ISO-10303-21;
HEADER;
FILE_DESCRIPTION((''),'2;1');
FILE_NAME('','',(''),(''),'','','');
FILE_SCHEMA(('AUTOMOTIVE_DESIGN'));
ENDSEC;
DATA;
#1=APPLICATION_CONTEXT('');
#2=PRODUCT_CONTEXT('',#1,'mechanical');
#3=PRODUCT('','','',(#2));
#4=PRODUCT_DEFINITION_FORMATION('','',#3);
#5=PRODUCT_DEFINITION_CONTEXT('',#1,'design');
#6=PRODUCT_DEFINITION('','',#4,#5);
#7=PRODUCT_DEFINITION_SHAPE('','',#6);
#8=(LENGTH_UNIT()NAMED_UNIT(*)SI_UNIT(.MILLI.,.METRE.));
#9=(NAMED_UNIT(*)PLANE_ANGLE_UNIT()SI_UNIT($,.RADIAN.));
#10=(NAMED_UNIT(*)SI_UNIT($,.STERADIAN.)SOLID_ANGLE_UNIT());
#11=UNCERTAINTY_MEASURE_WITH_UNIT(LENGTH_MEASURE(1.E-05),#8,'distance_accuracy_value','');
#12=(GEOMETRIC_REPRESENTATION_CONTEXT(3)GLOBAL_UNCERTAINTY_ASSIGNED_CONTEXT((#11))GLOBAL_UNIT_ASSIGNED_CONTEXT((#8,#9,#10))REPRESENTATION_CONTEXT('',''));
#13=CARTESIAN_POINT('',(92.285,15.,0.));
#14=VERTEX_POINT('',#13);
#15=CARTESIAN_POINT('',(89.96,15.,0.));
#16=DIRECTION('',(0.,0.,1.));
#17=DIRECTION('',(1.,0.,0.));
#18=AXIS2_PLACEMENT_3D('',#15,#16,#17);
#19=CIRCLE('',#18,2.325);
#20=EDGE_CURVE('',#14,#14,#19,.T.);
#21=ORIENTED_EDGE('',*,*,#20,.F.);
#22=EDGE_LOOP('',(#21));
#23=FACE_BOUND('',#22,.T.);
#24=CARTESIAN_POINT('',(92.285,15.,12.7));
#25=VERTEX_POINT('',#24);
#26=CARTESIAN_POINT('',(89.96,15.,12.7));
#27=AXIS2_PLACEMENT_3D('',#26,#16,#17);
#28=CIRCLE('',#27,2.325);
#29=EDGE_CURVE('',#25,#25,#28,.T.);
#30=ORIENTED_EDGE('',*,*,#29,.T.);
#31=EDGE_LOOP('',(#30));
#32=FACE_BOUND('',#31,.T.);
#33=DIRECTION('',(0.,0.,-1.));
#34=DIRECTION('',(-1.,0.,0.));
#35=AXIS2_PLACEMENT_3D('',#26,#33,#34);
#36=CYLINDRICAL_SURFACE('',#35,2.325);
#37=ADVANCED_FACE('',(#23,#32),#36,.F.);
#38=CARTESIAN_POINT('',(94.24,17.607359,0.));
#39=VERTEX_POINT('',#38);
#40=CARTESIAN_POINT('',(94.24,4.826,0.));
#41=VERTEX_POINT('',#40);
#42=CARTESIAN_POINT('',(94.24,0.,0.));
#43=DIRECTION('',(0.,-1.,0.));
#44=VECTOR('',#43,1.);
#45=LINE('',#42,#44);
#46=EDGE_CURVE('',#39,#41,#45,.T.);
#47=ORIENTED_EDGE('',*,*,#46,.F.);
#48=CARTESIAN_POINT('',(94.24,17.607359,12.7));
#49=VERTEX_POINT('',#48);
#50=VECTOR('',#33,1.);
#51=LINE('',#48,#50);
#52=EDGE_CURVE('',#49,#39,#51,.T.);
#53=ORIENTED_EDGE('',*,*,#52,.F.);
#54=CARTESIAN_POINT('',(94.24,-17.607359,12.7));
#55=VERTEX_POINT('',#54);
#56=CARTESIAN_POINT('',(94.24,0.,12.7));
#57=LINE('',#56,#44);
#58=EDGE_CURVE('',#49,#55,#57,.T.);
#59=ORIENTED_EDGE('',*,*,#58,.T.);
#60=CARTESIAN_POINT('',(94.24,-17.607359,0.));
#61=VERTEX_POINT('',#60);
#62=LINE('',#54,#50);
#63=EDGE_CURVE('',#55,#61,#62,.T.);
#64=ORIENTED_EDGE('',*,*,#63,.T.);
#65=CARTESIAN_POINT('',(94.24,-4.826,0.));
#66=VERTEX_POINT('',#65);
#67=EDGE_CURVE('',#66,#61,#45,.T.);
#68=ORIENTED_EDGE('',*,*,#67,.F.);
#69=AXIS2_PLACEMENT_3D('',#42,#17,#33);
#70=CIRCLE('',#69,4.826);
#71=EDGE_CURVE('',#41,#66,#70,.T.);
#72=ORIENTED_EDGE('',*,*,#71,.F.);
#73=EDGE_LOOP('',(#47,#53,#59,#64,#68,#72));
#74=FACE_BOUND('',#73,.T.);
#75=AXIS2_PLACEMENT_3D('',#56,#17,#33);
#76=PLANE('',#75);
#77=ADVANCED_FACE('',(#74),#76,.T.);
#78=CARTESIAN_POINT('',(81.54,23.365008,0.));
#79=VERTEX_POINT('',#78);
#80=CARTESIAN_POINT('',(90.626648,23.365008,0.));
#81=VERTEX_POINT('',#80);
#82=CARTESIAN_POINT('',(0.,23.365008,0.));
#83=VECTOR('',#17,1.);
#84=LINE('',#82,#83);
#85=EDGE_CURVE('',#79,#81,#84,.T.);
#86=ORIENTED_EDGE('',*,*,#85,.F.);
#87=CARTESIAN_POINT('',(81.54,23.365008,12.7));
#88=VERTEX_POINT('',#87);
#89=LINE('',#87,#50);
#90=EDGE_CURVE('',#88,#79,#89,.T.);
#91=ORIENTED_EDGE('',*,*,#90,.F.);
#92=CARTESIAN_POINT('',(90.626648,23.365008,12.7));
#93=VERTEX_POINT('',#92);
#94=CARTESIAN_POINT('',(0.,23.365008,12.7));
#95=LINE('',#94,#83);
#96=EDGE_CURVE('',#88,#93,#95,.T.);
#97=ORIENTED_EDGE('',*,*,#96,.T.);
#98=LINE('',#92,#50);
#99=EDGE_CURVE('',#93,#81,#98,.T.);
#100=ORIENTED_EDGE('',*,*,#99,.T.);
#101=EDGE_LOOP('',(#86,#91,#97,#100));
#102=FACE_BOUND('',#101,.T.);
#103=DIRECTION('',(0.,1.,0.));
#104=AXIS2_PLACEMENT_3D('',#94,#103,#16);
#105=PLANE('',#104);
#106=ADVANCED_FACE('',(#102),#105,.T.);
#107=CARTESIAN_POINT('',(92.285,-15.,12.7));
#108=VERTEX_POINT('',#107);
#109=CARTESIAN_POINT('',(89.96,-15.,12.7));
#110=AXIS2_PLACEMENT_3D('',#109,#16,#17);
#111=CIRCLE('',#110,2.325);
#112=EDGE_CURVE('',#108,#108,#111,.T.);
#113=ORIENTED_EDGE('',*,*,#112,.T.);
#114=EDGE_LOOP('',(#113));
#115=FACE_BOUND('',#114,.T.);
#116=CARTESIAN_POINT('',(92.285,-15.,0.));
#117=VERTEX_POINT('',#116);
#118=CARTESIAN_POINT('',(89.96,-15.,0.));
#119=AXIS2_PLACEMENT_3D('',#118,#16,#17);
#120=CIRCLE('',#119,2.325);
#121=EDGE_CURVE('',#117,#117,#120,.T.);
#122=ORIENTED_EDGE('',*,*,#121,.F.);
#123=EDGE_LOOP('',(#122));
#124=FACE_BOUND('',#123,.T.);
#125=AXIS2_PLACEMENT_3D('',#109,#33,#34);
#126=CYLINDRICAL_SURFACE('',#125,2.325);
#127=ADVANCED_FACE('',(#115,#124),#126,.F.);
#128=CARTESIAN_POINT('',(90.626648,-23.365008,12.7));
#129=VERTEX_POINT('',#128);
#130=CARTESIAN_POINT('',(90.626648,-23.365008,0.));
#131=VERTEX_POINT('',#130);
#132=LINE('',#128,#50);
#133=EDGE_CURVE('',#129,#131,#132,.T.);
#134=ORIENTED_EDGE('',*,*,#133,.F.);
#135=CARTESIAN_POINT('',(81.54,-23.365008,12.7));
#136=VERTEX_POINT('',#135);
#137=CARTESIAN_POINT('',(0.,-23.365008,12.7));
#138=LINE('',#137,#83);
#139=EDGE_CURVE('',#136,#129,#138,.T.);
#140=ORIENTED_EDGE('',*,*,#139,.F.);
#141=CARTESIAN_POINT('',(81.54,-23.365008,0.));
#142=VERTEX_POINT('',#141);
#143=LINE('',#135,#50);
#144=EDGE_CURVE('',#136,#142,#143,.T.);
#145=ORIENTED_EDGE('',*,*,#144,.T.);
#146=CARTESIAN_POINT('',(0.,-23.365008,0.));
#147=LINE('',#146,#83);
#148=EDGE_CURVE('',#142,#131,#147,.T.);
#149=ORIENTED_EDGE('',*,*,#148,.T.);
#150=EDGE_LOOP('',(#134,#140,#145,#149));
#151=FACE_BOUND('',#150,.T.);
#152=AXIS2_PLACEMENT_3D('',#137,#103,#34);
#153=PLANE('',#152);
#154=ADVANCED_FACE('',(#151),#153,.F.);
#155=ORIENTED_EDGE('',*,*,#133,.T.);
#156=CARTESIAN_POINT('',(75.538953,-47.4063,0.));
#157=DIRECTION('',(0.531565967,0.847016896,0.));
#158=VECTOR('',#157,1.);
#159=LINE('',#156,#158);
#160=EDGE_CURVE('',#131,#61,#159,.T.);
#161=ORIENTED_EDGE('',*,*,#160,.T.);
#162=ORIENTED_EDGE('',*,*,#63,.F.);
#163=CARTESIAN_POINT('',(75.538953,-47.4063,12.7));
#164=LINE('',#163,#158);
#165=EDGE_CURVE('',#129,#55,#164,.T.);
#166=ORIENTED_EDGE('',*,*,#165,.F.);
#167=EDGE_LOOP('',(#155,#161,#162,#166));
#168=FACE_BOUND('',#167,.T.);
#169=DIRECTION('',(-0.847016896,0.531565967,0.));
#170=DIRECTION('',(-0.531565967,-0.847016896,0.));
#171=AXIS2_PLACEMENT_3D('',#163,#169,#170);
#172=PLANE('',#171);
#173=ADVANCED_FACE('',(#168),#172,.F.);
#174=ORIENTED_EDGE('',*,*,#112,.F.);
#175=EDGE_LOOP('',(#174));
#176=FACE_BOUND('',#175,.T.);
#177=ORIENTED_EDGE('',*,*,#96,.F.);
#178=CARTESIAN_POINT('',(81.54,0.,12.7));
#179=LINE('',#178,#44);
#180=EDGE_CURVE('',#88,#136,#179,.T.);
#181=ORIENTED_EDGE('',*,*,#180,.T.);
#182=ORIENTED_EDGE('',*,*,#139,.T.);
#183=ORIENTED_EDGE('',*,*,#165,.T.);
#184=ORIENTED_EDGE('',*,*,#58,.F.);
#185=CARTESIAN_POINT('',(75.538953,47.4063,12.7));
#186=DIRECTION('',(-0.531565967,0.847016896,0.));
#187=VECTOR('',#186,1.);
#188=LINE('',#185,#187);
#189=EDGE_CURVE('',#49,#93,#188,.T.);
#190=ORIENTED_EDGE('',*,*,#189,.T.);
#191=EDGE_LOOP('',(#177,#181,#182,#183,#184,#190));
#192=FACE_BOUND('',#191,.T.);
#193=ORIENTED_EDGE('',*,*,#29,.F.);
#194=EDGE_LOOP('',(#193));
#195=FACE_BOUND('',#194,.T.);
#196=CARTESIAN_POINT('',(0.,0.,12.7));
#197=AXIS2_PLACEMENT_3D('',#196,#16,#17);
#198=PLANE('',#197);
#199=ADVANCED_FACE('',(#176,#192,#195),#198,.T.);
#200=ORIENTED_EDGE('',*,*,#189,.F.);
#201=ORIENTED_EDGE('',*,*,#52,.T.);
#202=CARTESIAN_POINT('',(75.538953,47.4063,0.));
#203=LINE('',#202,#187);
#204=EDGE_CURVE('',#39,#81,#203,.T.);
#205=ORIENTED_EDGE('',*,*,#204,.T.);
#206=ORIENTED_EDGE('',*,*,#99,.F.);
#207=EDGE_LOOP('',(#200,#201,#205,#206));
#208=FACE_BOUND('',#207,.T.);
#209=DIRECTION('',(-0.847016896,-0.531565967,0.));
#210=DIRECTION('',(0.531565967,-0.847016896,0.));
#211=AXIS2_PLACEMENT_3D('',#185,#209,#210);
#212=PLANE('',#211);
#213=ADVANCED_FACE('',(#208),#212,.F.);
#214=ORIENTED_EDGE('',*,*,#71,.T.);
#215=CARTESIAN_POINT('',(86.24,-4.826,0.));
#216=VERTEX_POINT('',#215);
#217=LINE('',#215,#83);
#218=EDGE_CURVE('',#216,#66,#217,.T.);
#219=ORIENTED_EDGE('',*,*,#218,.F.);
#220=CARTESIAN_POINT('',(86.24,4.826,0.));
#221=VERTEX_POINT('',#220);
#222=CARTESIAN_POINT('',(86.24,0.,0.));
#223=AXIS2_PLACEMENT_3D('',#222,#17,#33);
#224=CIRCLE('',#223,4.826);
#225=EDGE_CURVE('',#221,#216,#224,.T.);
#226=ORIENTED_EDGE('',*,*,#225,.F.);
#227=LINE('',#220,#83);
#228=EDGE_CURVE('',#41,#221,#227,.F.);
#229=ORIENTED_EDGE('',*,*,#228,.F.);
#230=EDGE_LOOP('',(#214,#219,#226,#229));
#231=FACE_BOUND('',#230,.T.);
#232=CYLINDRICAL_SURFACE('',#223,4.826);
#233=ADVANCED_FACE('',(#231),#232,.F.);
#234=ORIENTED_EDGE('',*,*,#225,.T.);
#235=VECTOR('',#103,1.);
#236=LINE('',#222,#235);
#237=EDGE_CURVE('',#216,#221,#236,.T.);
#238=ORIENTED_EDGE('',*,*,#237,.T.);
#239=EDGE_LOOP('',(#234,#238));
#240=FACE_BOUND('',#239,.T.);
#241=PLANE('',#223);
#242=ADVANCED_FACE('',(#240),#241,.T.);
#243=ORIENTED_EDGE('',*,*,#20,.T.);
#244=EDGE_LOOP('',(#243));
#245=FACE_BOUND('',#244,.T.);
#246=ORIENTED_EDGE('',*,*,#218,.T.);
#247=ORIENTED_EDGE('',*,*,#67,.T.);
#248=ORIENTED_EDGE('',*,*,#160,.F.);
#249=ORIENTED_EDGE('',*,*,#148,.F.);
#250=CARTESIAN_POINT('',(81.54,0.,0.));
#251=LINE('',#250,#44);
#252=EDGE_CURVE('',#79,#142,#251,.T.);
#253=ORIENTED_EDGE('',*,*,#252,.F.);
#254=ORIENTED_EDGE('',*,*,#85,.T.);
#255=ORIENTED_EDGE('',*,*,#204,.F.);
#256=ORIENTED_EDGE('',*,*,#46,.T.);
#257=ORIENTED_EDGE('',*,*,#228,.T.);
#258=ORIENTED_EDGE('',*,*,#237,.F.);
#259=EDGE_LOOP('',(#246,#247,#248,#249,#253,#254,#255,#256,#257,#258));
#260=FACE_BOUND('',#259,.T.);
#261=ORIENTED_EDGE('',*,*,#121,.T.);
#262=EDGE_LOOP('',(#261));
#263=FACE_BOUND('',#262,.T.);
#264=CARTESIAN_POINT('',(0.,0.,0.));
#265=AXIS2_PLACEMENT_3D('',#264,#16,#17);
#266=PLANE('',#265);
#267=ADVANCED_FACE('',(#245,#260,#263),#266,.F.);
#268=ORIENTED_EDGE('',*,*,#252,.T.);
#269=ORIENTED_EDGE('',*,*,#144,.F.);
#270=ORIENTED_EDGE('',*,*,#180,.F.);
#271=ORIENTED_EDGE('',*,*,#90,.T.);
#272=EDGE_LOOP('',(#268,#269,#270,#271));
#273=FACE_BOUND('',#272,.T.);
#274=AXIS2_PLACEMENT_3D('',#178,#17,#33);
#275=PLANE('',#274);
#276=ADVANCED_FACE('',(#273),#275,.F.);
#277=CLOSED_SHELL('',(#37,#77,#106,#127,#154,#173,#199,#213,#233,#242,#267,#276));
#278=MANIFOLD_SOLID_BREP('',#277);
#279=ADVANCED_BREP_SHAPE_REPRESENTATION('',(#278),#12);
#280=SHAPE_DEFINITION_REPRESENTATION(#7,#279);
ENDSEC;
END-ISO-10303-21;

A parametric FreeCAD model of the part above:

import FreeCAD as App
import Part
import Sketcher

V = App.Vector
Q = App.Units.Quantity


def add_polygon(sketch, points):
    """Adds a closed chain of lines whose ends are joined by coincident constraints."""
    first, n = sketch.GeometryCount, len(points)
    for a, b in zip(points, points[1:] + points[:1]):
        sketch.addGeometry(Part.LineSegment(App.Vector(*a, 0), App.Vector(*b, 0)), False)
    for i in range(n):
        sketch.addConstraint(Sketcher.Constraint("Coincident", first + i, 2, first + (i + 1) % n, 1))

doc = App.newDocument("Part")
body = doc.addObject("PartDesign::Body", "Body")

# Sketch on XY plane
sketch1 = doc.addObject("Sketcher::SketchObject", "Sketch")
body.addObject(sketch1)
sketch1.AttachmentSupport = (doc.XY_Plane, [""])
sketch1.MapMode = "FlatFace"
add_polygon(sketch1, [(90.6, 23.4), (81.5, 23.4), (81.5, -23.4), (90.6, -23.4), (94.2, -17.6), (94.2, 17.6)])  # lines 0-5
sketch1.addGeometry(Part.Circle(V(90, -15, 0), V(0, 0, 1), 2.3), False)  # 6
sketch1.addGeometry(Part.Circle(V(90, 15, 0), V(0, 0, 1), 2.3), False)  # 7
sketch1.addConstraint(Sketcher.Constraint("Horizontal", 0))
sketch1.addConstraint(Sketcher.Constraint("Vertical", 1))
sketch1.addConstraint(Sketcher.Constraint("Horizontal", 2))
sketch1.addConstraint(Sketcher.Constraint("Vertical", 4))
sketch1.addConstraint(Sketcher.Constraint("Equal", 6, 7))
sketch1.addConstraint(Sketcher.Constraint("Symmetric", 6, 3, 7, 3, -1))
sketch1.addConstraint(Sketcher.Constraint("Symmetric", 2, 2, 5, 2, -1))
sketch1.addConstraint(Sketcher.Constraint("Equal", 3, 5))
sketch1.addConstraint(Sketcher.Constraint("DistanceX", 1, 2, 3, 2, Q("0.5 in")))
sketch1.addConstraint(Sketcher.Constraint("Diameter", 6, Q("4.65 mm")))
sketch1.addConstraint(Sketcher.Constraint("DistanceY", 4, 1, 4, 2, Q("35.214719 mm")))
sketch1.addConstraint(Sketcher.Constraint("DistanceX", -1, 1, 6, 3, Q("89.96 mm")))
sketch1.addConstraint(Sketcher.Constraint("DistanceY", 6, 3, -1, 1, Q("15 mm")))
sketch1.addConstraint(Sketcher.Constraint("DistanceX", -1, 1, 0, 2, Q("81.54 mm")))
sketch1.addConstraint(Sketcher.Constraint("Distance", 3, Q("6.797561 mm")))
sketch1.addConstraint(Sketcher.Constraint("DistanceX", 0, 2, 0, 1, Q("9.086648 mm")))
pad1 = doc.addObject("PartDesign::Pad", "Pad")
body.addObject(pad1)
pad1.Profile = sketch1
pad1.Length = Q("0.5 in")

# Sketch on YZ plane
sketch2 = doc.addObject("Sketcher::SketchObject", "Sketch001")
body.addObject(sketch2)
sketch2.AttachmentSupport = (doc.YZ_Plane, [""])
sketch2.MapMode = "FlatFace"
sketch2.AttachmentOffset = App.Placement(V(0, 0, 94.24), App.Rotation())
sketch2.addGeometry(Part.Circle(V(0, 0, 0), V(0, 0, 1), 4.8), False)
sketch2.addConstraint(Sketcher.Constraint("Coincident", 0, 3, -1, 1))
sketch2.addConstraint(Sketcher.Constraint("Diameter", 0, Q("0.38 in")))
pocket1 = doc.addObject("PartDesign::Pocket", "Pocket")
body.addObject(pocket1)
pocket1.Profile = sketch2
pocket1.Length = 8

doc.recompute()
